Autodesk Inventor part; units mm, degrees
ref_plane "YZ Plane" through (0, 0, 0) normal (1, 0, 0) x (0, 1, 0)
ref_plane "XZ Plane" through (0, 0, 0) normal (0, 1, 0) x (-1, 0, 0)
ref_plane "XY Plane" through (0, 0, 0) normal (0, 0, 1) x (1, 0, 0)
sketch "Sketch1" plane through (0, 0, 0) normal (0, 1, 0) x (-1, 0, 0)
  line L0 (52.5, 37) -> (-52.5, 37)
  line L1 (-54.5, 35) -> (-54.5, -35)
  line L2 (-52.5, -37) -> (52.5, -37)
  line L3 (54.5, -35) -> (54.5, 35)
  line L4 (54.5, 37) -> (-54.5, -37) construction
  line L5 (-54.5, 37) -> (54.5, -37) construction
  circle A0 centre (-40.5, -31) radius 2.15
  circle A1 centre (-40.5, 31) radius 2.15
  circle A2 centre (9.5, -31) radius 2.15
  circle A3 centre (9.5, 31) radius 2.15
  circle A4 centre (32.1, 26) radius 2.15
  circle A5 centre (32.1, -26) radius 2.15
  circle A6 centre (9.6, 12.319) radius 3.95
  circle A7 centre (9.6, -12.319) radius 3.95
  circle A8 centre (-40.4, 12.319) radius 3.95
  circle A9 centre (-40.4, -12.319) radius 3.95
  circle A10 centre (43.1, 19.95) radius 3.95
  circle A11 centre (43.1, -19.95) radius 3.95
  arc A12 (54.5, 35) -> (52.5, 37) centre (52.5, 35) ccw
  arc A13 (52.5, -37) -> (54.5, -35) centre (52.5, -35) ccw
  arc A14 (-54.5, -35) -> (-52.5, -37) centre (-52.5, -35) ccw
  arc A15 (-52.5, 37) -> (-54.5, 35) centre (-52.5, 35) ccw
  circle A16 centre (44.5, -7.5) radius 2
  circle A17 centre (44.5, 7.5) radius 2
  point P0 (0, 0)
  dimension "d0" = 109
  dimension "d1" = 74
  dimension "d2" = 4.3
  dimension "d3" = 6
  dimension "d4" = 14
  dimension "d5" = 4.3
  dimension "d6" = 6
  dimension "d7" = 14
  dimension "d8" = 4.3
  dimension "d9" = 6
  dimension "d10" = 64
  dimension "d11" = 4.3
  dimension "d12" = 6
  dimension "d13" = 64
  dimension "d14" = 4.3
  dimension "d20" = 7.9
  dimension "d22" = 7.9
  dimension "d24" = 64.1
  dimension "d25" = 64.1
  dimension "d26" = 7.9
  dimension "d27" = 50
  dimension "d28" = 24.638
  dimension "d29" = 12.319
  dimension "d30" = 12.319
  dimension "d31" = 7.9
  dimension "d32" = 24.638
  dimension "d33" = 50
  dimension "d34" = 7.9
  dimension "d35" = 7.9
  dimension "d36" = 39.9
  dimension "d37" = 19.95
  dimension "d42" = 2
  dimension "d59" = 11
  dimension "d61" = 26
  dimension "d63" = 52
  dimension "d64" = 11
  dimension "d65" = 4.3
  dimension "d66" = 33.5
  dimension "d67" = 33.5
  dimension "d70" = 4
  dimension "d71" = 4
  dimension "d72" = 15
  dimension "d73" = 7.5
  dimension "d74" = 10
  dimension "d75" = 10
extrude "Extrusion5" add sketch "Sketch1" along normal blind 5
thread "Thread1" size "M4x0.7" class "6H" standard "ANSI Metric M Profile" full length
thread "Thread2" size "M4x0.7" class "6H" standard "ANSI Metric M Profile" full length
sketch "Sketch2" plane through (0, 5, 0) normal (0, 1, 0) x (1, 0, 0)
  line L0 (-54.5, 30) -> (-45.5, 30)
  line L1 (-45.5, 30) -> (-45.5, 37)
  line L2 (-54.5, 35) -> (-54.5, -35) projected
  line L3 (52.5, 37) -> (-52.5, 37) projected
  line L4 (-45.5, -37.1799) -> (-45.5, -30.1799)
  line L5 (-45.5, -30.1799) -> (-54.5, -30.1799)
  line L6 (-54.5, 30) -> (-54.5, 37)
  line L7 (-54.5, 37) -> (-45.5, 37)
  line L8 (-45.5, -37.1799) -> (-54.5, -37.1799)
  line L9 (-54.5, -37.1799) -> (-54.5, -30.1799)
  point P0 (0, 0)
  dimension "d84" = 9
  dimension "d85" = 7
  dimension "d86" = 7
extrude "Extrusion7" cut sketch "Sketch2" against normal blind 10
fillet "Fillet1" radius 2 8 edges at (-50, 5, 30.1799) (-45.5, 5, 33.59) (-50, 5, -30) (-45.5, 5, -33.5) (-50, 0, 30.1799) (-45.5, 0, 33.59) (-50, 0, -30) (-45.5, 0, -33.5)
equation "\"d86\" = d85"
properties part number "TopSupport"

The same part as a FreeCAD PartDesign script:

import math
import FreeCAD as App
import Part
import Sketcher


def edges_at(feature, points):
    """Names of the edges that pass closest to the given points."""
    edges = feature.Shape.Edges
    near = lambda p: min(range(len(edges)), key=lambda i: edges[i].distToShape(Part.Vertex(*p))[0])
    return sorted({f"Edge{near(p) + 1}" for p in points})

doc = App.newDocument("Part")
body = doc.addObject("PartDesign::Body", "Body")

sketch1 = body.newObject("Sketcher::SketchObject", "Sketch")
sketch1.AttachmentSupport = (doc.getObject("XZ_Plane"), [""])
sketch1.MapMode = "FlatFace"
sketch1.addGeometry(Part.ArcOfCircle(Part.Circle(App.Vector(-52.5, 35, 0), App.Vector(0, 0, 1), 2), math.radians(90), math.radians(180)), False)
sketch1.addGeometry(Part.LineSegment(App.Vector(-52.5, 37, 0), App.Vector(52.5, 37, 0)), False)
sketch1.addGeometry(Part.ArcOfCircle(Part.Circle(App.Vector(52.5, 35, 0), App.Vector(0, 0, 1), 2), math.radians(0), math.radians(90)), False)
sketch1.addGeometry(Part.LineSegment(App.Vector(54.5, 35, 0), App.Vector(54.5, -35, 0)), False)
sketch1.addGeometry(Part.ArcOfCircle(Part.Circle(App.Vector(52.5, -35, 0), App.Vector(0, 0, 1), 2), math.radians(-90), math.radians(0)), False)
sketch1.addGeometry(Part.LineSegment(App.Vector(52.5, -37, 0), App.Vector(-52.5, -37, 0)), False)
sketch1.addGeometry(Part.ArcOfCircle(Part.Circle(App.Vector(-52.5, -35, 0), App.Vector(0, 0, 1), 2), math.radians(180), math.radians(270)), False)
sketch1.addGeometry(Part.LineSegment(App.Vector(-54.5, -35, 0), App.Vector(-54.5, 35, 0)), False)
sketch1.addGeometry(Part.Circle(App.Vector(40.5, -31, 0), App.Vector(0, 0, 1), 2.1), False)
sketch1.addGeometry(Part.Circle(App.Vector(40.4, -12.3, 0), App.Vector(0, 0, 1), 4), False)
sketch1.addGeometry(Part.Circle(App.Vector(-9.5, -31, 0), App.Vector(0, 0, 1), 2.1), False)
sketch1.addGeometry(Part.Circle(App.Vector(-32.1, -26, 0), App.Vector(0, 0, 1), 2.1), False)
sketch1.addGeometry(Part.Circle(App.Vector(-43.1, -19.9, 0), App.Vector(0, 0, 1), 4), False)
sketch1.addGeometry(Part.Circle(App.Vector(-9.6, -12.3, 0), App.Vector(0, 0, 1), 4), False)
sketch1.addGeometry(Part.Circle(App.Vector(-44.5, -7.5, 0), App.Vector(0, 0, 1), 2), False)
sketch1.addGeometry(Part.Circle(App.Vector(40.4, 12.3, 0), App.Vector(0, 0, 1), 4), False)
sketch1.addGeometry(Part.Circle(App.Vector(40.5, 31, 0), App.Vector(0, 0, 1), 2.1), False)
sketch1.addGeometry(Part.Circle(App.Vector(-9.6, 12.3, 0), App.Vector(0, 0, 1), 4), False)
sketch1.addGeometry(Part.Circle(App.Vector(-44.5, 7.5, 0), App.Vector(0, 0, 1), 2), False)
sketch1.addGeometry(Part.Circle(App.Vector(-9.5, 31, 0), App.Vector(0, 0, 1), 2.1), False)
sketch1.addGeometry(Part.Circle(App.Vector(-32.1, 26, 0), App.Vector(0, 0, 1), 2.1), False)
sketch1.addGeometry(Part.Circle(App.Vector(-43.1, 19.9, 0), App.Vector(0, 0, 1), 4), False)
sketch1.addConstraint(Sketcher.Constraint("Tangent", 0, 1, 1, 1))
sketch1.addConstraint(Sketcher.Constraint("Tangent", 1, 2, 2, 2))
sketch1.addConstraint(Sketcher.Constraint("Tangent", 2, 1, 3, 1))
sketch1.addConstraint(Sketcher.Constraint("Tangent", 3, 2, 4, 2))
sketch1.addConstraint(Sketcher.Constraint("Tangent", 4, 1, 5, 1))
sketch1.addConstraint(Sketcher.Constraint("Tangent", 5, 2, 6, 2))
sketch1.addConstraint(Sketcher.Constraint("Tangent", 6, 1, 7, 1))
sketch1.addConstraint(Sketcher.Constraint("Tangent", 7, 2, 0, 2))
sketch1.addConstraint(Sketcher.Constraint("Horizontal", 1))
sketch1.addConstraint(Sketcher.Constraint("Vertical", 3))
sketch1.addConstraint(Sketcher.Constraint("Horizontal", 5))
sketch1.addConstraint(Sketcher.Constraint("Vertical", 7))
sketch1.addConstraint(Sketcher.Constraint("Equal", 0, 2))
sketch1.addConstraint(Sketcher.Constraint("Equal", 2, 4))
sketch1.addConstraint(Sketcher.Constraint("Equal", 4, 6))
sketch1.addConstraint(Sketcher.Constraint("Equal", 8, 10))
sketch1.addConstraint(Sketcher.Constraint("Equal", 10, 11))
sketch1.addConstraint(Sketcher.Constraint("Equal", 9, 12))
sketch1.addConstraint(Sketcher.Constraint("Equal", 12, 13))
sketch1.addConstraint(Sketcher.Constraint("Equal", 6, 14))
sketch1.addConstraint(Sketcher.Constraint("Equal", 13, 15))
sketch1.addConstraint(Sketcher.Constraint("Equal", 11, 16))
sketch1.addConstraint(Sketcher.Constraint("Equal", 15, 17))
sketch1.addConstraint(Sketcher.Constraint("Equal", 14, 18))
sketch1.addConstraint(Sketcher.Constraint("Equal", 16, 19))
sketch1.addConstraint(Sketcher.Constraint("Equal", 19, 20))
sketch1.addConstraint(Sketcher.Constraint("Equal", 17, 21))
sketch1.addConstraint(Sketcher.Constraint("Symmetric", 0, 3, 4, 3, -1, 1))
sketch1.addConstraint(Sketcher.Constraint("Symmetric", 9, 3, 15, 3, -1))
sketch1.addConstraint(Sketcher.Constraint("Symmetric", 8, 3, 16, 3, -1))
sketch1.addConstraint(Sketcher.Constraint("Symmetric", 13, 3, 17, 3, -1))
sketch1.addConstraint(Sketcher.Constraint("Symmetric", 14, 3, 18, 3, -1))
sketch1.addConstraint(Sketcher.Constraint("Symmetric", 10, 3, 19, 3, -1))
sketch1.addConstraint(Sketcher.Constraint("Symmetric", 11, 3, 20, 3, -1))
sketch1.addConstraint(Sketcher.Constraint("Symmetric", 12, 3, 21, 3, -1))
sketch1.addConstraint(Sketcher.Constraint("Horizontal", 8, 3, 10, 3))
sketch1.addConstraint(Sketcher.Constraint("Horizontal", 9, 3, 13, 3))
sketch1.addConstraint(Sketcher.Constraint("Diameter", 14, 4.0))
sketch1.addConstraint(Sketcher.Constraint("Diameter", 8, 4.3))
sketch1.addConstraint(Sketcher.Constraint("Diameter", 9, 7.9))
sketch1.addConstraint(Sketcher.Constraint("DistanceY", 11, 3, -1, 1, 26.0))
sketch1.addConstraint(Sketcher.Constraint("DistanceY", 4, 3, 8, 3, 4.0))
sketch1.addConstraint(Sketcher.Constraint("DistanceX", 10, 3, 8, 3, 50.0))
sketch1.addConstraint(Sketcher.Constraint("DistanceX", 12, 3, 11, 3, 11.0))
sketch1.addConstraint(Sketcher.Constraint("DistanceX", 13, 3, 9, 3, 50.0))
sketch1.addConstraint(Sketcher.Constraint("DistanceY", 14, 3, 18, 3, 15.0))
sketch1.addConstraint(Sketcher.Constraint("DistanceY", 20, 3, 0, 1, 11.0))
sketch1.addConstraint(Sketcher.Constraint("DistanceX", 16, 3, 2, 1, 14.0))
sketch1.addConstraint(Sketcher.Constraint("DistanceX", 6, 1, 14, 3, 10.0))
sketch1.addConstraint(Sketcher.Constraint("DistanceX", 12, 3, 13, 3, 33.5))
sketch1.addConstraint(Sketcher.Constraint("DistanceX", 1, 1, 1, 2, 105.0))
sketch1.addConstraint(Sketcher.Constraint("DistanceY", 12, 3, -1, 1, 19.95))
sketch1.addConstraint(Sketcher.Constraint("DistanceY", 9, 3, -1, 1, 12.319))
sketch1.addConstraint(Sketcher.Constraint("DistanceX", -1, 1, 9, 3, 40.4))
pad1 = body.newObject("PartDesign::Pad", "Pad")
pad1.Profile = sketch1
pad1.Length = 5
pad1.Reversed = True

sketch2 = body.newObject("Sketcher::SketchObject", "Sketch001")
sketch2.AttachmentSupport = (doc.getObject("XZ_Plane"), [""])
sketch2.MapMode = "FlatFace"
sketch2.AttachmentOffset = App.Placement(App.Vector(0, 0, -5), App.Rotation())
sketch2.addGeometry(Part.LineSegment(App.Vector(-54, -37, 0), App.Vector(-54, -30, 0)), False)
sketch2.addGeometry(Part.LineSegment(App.Vector(-54, -30, 0), App.Vector(-46, -30, 0)), False)
sketch2.addGeometry(Part.LineSegment(App.Vector(-46, -30, 0), App.Vector(-46, -37, 0)), False)
sketch2.addGeometry(Part.LineSegment(App.Vector(-46, -37, 0), App.Vector(-54, -37, 0)), False)
sketch2.addGeometry(Part.LineSegment(App.Vector(-46, 30, 0), App.Vector(-54, 30, 0)), False)
sketch2.addGeometry(Part.LineSegment(App.Vector(-54, 30, 0), App.Vector(-54, 37, 0)), False)
sketch2.addGeometry(Part.LineSegment(App.Vector(-54, 37, 0), App.Vector(-46, 37, 0)), False)
sketch2.addGeometry(Part.LineSegment(App.Vector(-46, 37, 0), App.Vector(-46, 30, 0)), False)
sketch2.addConstraint(Sketcher.Constraint("Coincident", 0, 2, 1, 1))
sketch2.addConstraint(Sketcher.Constraint("Coincident", 1, 2, 2, 1))
sketch2.addConstraint(Sketcher.Constraint("Coincident", 2, 2, 3, 1))
sketch2.addConstraint(Sketcher.Constraint("Coincident", 3, 2, 0, 1))
sketch2.addConstraint(Sketcher.Constraint("Coincident", 4, 2, 5, 1))
sketch2.addConstraint(Sketcher.Constraint("Coincident", 5, 2, 6, 1))
sketch2.addConstraint(Sketcher.Constraint("Coincident", 6, 2, 7, 1))
sketch2.addConstraint(Sketcher.Constraint("Coincident", 7, 2, 4, 1))
sketch2.addConstraint(Sketcher.Constraint("Vertical", 0))
sketch2.addConstraint(Sketcher.Constraint("Horizontal", 1))
sketch2.addConstraint(Sketcher.Constraint("Vertical", 2))
sketch2.addConstraint(Sketcher.Constraint("Horizontal", 3))
sketch2.addConstraint(Sketcher.Constraint("Horizontal", 4))
sketch2.addConstraint(Sketcher.Constraint("Vertical", 5))
sketch2.addConstraint(Sketcher.Constraint("Horizontal", 6))
sketch2.addConstraint(Sketcher.Constraint("Vertical", 7))
sketch2.addConstraint(Sketcher.Constraint("Vertical", 3, 2, 4, 2))
sketch2.addConstraint(Sketcher.Constraint("Vertical", 2, 2, 6, 2))
sketch2.addConstraint(Sketcher.Constraint("Equal", 2, 5))
sketch2.addConstraint(Sketcher.Constraint("DistanceX", 1, 1, 1, 2, 9.0))
sketch2.addConstraint(Sketcher.Constraint("DistanceY", 0, 1, 0, 2, 7.0))
sketch2.addConstraint(Sketcher.Constraint("DistanceY", 0, 2, -1, 1, 30.0))
sketch2.addConstraint(Sketcher.Constraint("DistanceX", 0, 2, -1, 1, 54.5))
sketch2.addConstraint(Sketcher.Constraint("DistanceY", -1, 1, 4, 2, 30.18))
pocket1 = body.newObject("PartDesign::Pocket", "Pocket")
pocket1.Profile = sketch2
pocket1.Length = 10
pocket1.Reversed = True
doc.recompute()

fillet = body.newObject("PartDesign::Fillet", "Fillet")
fillet.Base = (pocket1, edges_at(pocket1, [
    (-50, 5, 30.18),
    (-45.5, 5, 33.59),
    (-50, 5, -30),
    (-45.5, 5, -33.5),
    (-50, 0, 30.18),
    (-45.5, 0, 33.59),
    (-50, 0, -30),
    (-45.5, 0, -33.5),
]))
fillet.Radius = 2

doc.recompute()
